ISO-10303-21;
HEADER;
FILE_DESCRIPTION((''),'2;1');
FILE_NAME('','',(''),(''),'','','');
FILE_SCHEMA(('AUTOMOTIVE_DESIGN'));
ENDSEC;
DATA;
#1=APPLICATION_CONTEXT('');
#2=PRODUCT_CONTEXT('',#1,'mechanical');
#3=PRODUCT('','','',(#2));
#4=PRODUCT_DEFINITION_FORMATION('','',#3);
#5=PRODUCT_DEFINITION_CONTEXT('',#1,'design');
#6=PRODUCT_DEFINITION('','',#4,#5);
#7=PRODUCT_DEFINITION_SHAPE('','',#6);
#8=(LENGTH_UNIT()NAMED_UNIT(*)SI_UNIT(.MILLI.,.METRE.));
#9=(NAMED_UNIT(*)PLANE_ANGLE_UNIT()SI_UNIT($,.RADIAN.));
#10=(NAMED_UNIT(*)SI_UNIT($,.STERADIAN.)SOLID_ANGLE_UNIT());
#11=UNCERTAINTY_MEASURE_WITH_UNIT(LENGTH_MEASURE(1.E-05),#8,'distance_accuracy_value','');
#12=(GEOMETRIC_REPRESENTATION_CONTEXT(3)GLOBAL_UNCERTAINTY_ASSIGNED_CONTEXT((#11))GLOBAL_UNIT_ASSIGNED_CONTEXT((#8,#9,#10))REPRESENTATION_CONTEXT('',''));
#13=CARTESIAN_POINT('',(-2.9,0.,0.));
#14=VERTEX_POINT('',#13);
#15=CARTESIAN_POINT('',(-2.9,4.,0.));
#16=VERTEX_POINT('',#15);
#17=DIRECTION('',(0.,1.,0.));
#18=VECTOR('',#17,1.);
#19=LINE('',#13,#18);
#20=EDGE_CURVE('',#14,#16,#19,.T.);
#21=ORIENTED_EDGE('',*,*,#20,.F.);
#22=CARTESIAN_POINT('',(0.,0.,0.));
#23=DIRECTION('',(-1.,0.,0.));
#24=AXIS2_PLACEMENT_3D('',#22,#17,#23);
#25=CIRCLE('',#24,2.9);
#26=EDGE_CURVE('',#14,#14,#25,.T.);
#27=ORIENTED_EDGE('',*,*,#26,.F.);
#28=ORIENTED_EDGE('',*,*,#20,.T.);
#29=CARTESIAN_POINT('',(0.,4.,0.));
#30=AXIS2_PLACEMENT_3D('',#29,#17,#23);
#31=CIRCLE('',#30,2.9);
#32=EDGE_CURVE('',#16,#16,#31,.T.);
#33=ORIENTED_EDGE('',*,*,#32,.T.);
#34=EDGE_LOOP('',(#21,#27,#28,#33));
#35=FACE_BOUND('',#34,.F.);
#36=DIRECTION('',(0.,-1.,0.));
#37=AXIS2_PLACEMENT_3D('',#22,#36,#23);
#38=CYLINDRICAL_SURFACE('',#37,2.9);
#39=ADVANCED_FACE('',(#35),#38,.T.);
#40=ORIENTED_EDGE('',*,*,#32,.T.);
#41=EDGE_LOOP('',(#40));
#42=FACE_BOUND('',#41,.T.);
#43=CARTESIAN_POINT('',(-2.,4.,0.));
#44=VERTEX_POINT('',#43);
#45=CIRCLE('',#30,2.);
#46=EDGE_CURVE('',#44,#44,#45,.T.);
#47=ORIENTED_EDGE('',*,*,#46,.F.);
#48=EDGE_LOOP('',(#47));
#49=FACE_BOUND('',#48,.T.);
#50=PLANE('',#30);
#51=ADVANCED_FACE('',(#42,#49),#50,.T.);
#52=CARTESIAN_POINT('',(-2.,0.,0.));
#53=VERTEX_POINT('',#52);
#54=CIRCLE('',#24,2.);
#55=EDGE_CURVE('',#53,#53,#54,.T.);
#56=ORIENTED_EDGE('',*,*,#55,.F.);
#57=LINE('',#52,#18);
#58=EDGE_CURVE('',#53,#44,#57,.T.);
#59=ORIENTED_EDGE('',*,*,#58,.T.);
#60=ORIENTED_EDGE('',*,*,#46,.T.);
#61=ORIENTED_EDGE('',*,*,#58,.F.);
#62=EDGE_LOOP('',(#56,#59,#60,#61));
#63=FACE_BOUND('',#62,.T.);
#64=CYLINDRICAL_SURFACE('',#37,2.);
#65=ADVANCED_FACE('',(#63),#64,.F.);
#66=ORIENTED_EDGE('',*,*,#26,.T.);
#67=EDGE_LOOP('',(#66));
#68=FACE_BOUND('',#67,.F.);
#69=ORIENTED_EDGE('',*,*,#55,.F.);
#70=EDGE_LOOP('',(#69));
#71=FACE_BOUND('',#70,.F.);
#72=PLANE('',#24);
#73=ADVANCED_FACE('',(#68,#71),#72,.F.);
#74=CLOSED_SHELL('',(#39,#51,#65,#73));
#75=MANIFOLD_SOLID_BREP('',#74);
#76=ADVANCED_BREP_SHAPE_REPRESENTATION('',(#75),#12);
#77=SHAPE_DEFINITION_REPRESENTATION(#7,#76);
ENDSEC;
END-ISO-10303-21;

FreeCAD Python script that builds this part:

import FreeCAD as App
import Part
import Sketcher

doc = App.newDocument("Part")
body = doc.addObject("PartDesign::Body", "Body")

sketch1 = body.newObject("Sketcher::SketchObject", "Sketch")
sketch1.AttachmentSupport = (doc.getObject("XZ_Plane"), [""])
sketch1.MapMode = "FlatFace"
sketch1.addGeometry(Part.Circle(App.Vector(0, 0, 0), App.Vector(0, 0, 1), 2.9), False)
sketch1.addGeometry(Part.Circle(App.Vector(0, 0, 0), App.Vector(0, 0, 1), 2), False)
sketch1.addConstraint(Sketcher.Constraint("Coincident", 0, 3, -1, 1))
sketch1.addConstraint(Sketcher.Constraint("Coincident", 1, 3, -1, 1))
sketch1.addConstraint(Sketcher.Constraint("Diameter", 1, 4.0))
sketch1.addConstraint(Sketcher.Constraint("Diameter", 0, 5.8))
pad1 = body.newObject("PartDesign::Pad", "Pad")
pad1.Profile = sketch1
pad1.Length = 4
pad1.Reversed = True

doc.recompute()
